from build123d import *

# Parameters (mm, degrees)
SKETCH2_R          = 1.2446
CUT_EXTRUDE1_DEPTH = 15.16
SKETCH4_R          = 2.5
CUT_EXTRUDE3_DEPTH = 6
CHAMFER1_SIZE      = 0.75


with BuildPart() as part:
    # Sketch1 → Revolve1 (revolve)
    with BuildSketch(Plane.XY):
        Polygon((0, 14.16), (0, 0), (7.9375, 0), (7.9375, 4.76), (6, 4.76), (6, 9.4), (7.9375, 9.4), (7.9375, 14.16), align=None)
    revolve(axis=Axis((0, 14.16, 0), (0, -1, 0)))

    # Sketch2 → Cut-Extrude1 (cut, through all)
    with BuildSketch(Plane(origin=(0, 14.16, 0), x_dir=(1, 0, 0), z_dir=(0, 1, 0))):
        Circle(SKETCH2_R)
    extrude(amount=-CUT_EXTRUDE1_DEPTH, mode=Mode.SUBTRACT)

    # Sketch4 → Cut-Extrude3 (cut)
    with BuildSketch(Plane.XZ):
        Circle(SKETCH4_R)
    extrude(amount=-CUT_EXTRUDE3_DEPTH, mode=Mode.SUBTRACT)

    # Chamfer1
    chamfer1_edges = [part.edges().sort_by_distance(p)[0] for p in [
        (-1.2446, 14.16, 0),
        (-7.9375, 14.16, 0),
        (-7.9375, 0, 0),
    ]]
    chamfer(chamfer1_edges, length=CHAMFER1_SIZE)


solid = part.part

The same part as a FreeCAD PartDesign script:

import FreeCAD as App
import Part
import Sketcher
Q = App.Units.Quantity


def edges_at(feature, points):
    """Names of the edges that pass closest to the given points."""
    edges = feature.Shape.Edges
    near = lambda p: min(range(len(edges)), key=lambda i: edges[i].distToShape(Part.Vertex(*p))[0])
    return sorted({f"Edge{near(p) + 1}" for p in points})


def add_polygon(sketch, points):
    """Adds a closed chain of lines whose ends are joined by coincident constraints."""
    first, n = sketch.GeometryCount, len(points)
    for a, b in zip(points, points[1:] + points[:1]):
        sketch.addGeometry(Part.LineSegment(App.Vector(*a, 0), App.Vector(*b, 0)), False)
    for i in range(n):
        sketch.addConstraint(Sketcher.Constraint("Coincident", first + i, 2, first + (i + 1) % n, 1))

doc = App.newDocument("Part")
body = doc.addObject("PartDesign::Body", "Body")

# Sketch on XY plane
sketch1 = body.newObject("Sketcher::SketchObject", "Sketch")
sketch1.AttachmentSupport = (doc.getObject("XY_Plane"), [""])
sketch1.MapMode = "FlatFace"
add_polygon(sketch1, [(0, 14.16), (0, 0), (7.9375, 0), (7.9375, 4.76), (6, 4.76), (6, 9.4), (7.9375, 9.4), (7.9375, 14.16)])  # lines 0-7
sketch1.addConstraint(Sketcher.Constraint("Vertical", 0))
sketch1.addConstraint(Sketcher.Constraint("Horizontal", 1))
sketch1.addConstraint(Sketcher.Constraint("Vertical", 2))
sketch1.addConstraint(Sketcher.Constraint("Horizontal", 3))
sketch1.addConstraint(Sketcher.Constraint("Vertical", 4))
sketch1.addConstraint(Sketcher.Constraint("Horizontal", 5))
sketch1.addConstraint(Sketcher.Constraint("Vertical", 6))
sketch1.addConstraint(Sketcher.Constraint("Horizontal", 7))
sketch1.addConstraint(Sketcher.Constraint("Coincident", 0, 2, -1, 1))
sketch1.addConstraint(Sketcher.Constraint("Vertical", 2, 2, 5, 2))
sketch1.addConstraint(Sketcher.Constraint("Equal", 2, 6))
sketch1.addConstraint(Sketcher.Constraint("DistanceX", -1, 1, 3, 2, Q("6 mm")))
sketch1.addConstraint(Sketcher.Constraint("DistanceY", 0, 2, 0, 1, Q("14.16 mm")))
sketch1.addConstraint(Sketcher.Constraint("DistanceY", 2, 1, 2, 2, Q("4.76 mm")))
sketch1.addConstraint(Sketcher.Constraint("DistanceX", 1, 1, 1, 2, Q("7.9375 mm")))
revolution = body.newObject("PartDesign::Revolution", "Revolution")
revolution.Profile = sketch1
revolution.ReferenceAxis = (sketch1, ["V_Axis"])
revolution.Angle = 360

# Sketch on XZ plane
sketch2 = body.newObject("Sketcher::SketchObject", "Sketch001")
sketch2.AttachmentSupport = (doc.getObject("XZ_Plane"), [""])
sketch2.MapMode = "FlatFace"
sketch2.AttachmentOffset = App.Placement(App.Vector(0, 0, -14.16), App.Rotation())
sketch2.addGeometry(Part.Circle(App.Vector(0, 0, 0), App.Vector(0, 0, 1), 1.2446), False)
sketch2.addConstraint(Sketcher.Constraint("Coincident", 0, 3, -1, 1))
sketch2.addConstraint(Sketcher.Constraint("Diameter", 0, Q("2.4892 mm")))
pocket1 = body.newObject("PartDesign::Pocket", "Pocket")
pocket1.Profile = sketch2
pocket1.Type = "ThroughAll"
pocket1.Reversed = True

# Sketch on XZ plane
sketch3 = body.newObject("Sketcher::SketchObject", "Sketch002")
sketch3.AttachmentSupport = (doc.getObject("XZ_Plane"), [""])
sketch3.MapMode = "FlatFace"
sketch3.addGeometry(Part.Circle(App.Vector(0, 0, 0), App.Vector(0, 0, 1), 2.5), False)
sketch3.addConstraint(Sketcher.Constraint("Coincident", 0, 3, -1, 1))
sketch3.addConstraint(Sketcher.Constraint("Diameter", 0, Q("5 mm")))
pocket2 = body.newObject("PartDesign::Pocket", "Pocket001")
pocket2.Profile = sketch3
pocket2.Length = 6
doc.recompute()

chamfer = body.newObject("PartDesign::Chamfer", "Chamfer")
chamfer.Base = (pocket2, edges_at(pocket2, [(-1.245, 14.16, 0), (-7.938, 14.16, 0), (-7.938, 0, 0)]))
chamfer.Size = 0.75

doc.recompute()
